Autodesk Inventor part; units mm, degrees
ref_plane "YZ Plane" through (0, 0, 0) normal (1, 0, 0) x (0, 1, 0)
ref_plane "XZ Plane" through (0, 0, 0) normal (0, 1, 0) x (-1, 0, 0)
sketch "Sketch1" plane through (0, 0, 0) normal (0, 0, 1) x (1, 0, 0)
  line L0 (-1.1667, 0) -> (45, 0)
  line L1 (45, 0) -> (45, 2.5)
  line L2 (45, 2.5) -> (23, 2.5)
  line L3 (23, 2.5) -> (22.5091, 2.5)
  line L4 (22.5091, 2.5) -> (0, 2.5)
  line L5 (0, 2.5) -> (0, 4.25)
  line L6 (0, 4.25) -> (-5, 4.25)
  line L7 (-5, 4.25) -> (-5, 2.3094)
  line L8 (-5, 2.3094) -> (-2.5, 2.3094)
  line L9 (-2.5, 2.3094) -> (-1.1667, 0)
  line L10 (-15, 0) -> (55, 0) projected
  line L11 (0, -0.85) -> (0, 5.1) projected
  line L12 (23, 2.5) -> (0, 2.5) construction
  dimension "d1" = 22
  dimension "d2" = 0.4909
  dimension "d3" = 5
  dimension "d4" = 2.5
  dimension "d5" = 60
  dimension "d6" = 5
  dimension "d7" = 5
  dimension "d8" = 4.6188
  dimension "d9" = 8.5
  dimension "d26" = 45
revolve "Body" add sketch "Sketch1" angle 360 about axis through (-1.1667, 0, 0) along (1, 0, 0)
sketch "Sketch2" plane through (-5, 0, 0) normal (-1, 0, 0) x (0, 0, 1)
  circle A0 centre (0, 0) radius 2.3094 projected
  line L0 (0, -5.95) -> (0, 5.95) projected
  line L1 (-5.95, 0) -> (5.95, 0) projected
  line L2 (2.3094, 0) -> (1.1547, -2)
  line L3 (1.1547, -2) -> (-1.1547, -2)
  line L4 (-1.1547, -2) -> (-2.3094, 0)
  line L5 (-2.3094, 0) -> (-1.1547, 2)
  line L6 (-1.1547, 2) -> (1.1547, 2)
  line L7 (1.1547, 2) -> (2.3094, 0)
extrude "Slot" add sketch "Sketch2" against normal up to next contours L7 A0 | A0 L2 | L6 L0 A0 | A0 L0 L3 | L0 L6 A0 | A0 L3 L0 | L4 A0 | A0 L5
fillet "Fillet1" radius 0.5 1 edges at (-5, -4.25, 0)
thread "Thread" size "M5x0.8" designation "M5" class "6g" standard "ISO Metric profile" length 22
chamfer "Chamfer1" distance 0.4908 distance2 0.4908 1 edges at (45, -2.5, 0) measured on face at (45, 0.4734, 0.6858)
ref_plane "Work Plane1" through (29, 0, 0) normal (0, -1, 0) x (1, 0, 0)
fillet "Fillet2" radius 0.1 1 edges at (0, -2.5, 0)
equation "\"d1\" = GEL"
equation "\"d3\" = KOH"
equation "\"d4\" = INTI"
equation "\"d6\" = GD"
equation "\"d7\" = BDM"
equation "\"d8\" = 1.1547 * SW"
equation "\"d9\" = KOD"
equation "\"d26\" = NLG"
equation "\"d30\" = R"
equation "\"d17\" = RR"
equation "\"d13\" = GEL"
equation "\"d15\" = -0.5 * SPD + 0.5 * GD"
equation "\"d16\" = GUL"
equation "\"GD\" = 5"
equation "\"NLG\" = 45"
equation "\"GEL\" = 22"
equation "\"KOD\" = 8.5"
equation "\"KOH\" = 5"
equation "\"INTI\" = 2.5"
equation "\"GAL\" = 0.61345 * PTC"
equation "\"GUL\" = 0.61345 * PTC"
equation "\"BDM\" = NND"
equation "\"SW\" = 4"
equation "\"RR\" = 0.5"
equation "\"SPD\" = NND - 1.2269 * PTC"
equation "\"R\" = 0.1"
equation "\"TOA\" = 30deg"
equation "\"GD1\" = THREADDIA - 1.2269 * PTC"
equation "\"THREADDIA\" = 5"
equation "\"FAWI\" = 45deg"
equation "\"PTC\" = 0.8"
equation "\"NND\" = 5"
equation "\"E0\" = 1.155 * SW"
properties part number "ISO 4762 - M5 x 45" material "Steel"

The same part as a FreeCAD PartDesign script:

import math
import FreeCAD as App
import Part
import Sketcher

V = App.Vector
Q = App.Units.Quantity


def edges_at(feature, points):
    """Names of the edges that pass closest to the given points."""
    edges = feature.Shape.Edges
    near = lambda p: min(range(len(edges)), key=lambda i: edges[i].distToShape(Part.Vertex(*p))[0])
    return sorted({f"Edge{near(p) + 1}" for p in points})


def add_polygon(sketch, points):
    """Adds a closed chain of lines whose ends are joined by coincident constraints."""
    first, n = sketch.GeometryCount, len(points)
    for a, b in zip(points, points[1:] + points[:1]):
        sketch.addGeometry(Part.LineSegment(App.Vector(*a, 0), App.Vector(*b, 0)), False)
    for i in range(n):
        sketch.addConstraint(Sketcher.Constraint("Coincident", first + i, 2, first + (i + 1) % n, 1))

doc = App.newDocument("Part")
body = doc.addObject("PartDesign::Body", "Body")

sketch1 = doc.addObject("Sketcher::SketchObject", "Sketch")
body.addObject(sketch1)
sketch1.AttachmentSupport = (doc.XY_Plane, [""])
sketch1.MapMode = "FlatFace"
add_polygon(sketch1, [(-2.5, 2.3), (-1.2, 0), (45, 0), (45, 2.5), (0, 2.5), (0, 4.2), (-5, 4.2), (-5, 2.3)])
sketch1.addConstraint(Sketcher.Constraint("Horizontal", 1))
sketch1.addConstraint(Sketcher.Constraint("Vertical", 2))
sketch1.addConstraint(Sketcher.Constraint("Horizontal", 3))
sketch1.addConstraint(Sketcher.Constraint("Vertical", 4))
sketch1.addConstraint(Sketcher.Constraint("Horizontal", 5))
sketch1.addConstraint(Sketcher.Constraint("Vertical", 6))
sketch1.addConstraint(Sketcher.Constraint("Horizontal", 7))
sketch1.addConstraint(Sketcher.Constraint("PointOnObject", 0, 2, -1))
sketch1.addConstraint(Sketcher.Constraint("PointOnObject", 3, 2, -2))
sketch1.addConstraint(Sketcher.Constraint("Equal", 7, 2))
sketch1.addConstraint(Sketcher.Constraint("DistanceX", 3, 2, 3, 1, 45.0))
sketch1.addConstraint(Sketcher.Constraint("DistanceX", 5, 2, 5, 1, 5.0))
sketch1.addConstraint(Sketcher.Constraint("DistanceX", 7, 1, 7, 2, 2.5))
sketch1.addConstraint(Sketcher.Constraint("Angle", 0, Q("-60.0006 deg")))
sketch1.addConstraint(Sketcher.Constraint("DistanceY", 4, 1, 4, 2, 1.75))
sketch1.addConstraint(Sketcher.Constraint("DistanceX", 1, 1, 1, 2, 46.1667))
revolution = doc.addObject("PartDesign::Revolution", "Revolution")
body.addObject(revolution)
revolution.Profile = sketch1
revolution.ReferenceAxis = (sketch1, ["H_Axis"])
revolution.Angle = 360

sketch2 = doc.addObject("Sketcher::SketchObject", "Sketch001")
body.addObject(sketch2)
sketch2.AttachmentSupport = (doc.YZ_Plane, [""])
sketch2.MapMode = "FlatFace"
sketch2.AttachmentOffset = App.Placement(V(0, 0, -5), App.Rotation())
sketch2.addGeometry(Part.LineSegment(V(2, 1.2, 0), V(0, 2.3, 0)), False)
sketch2.addGeometry(Part.ArcOfCircle(Part.Circle(V(0, 0, 0), V(0, 0, 1), 2.3), math.radians(30), math.radians(90)), False)
sketch2.addGeometry(Part.ArcOfCircle(Part.Circle(V(0, 0, 0), V(0, 0, 1), 2.3), math.radians(90), math.radians(150)), False)
sketch2.addGeometry(Part.LineSegment(V(0, 2.3, 0), V(-2, 1.2, 0)), False)
sketch2.addGeometry(Part.ArcOfCircle(Part.Circle(V(0, 0, 0), V(0, 0, 1), 2.3), math.radians(-30), math.radians(30)), False)
sketch2.addGeometry(Part.LineSegment(V(2, -1.2, 0), V(2, 1.2, 0)), False)
sketch2.addGeometry(Part.LineSegment(V(-2, 1.2, 0), V(-2, -1.2, 0)), False)
sketch2.addGeometry(Part.ArcOfCircle(Part.Circle(V(0, 0, 0), V(0, 0, 1), 2.3), math.radians(150), math.radians(210)), False)
sketch2.addGeometry(Part.LineSegment(V(-2, -1.2, 0), V(0, -2.3, 0)), False)
sketch2.addGeometry(Part.ArcOfCircle(Part.Circle(V(0, 0, 0), V(0, 0, 1), 2.3), math.radians(-150), math.radians(-90)), False)
sketch2.addGeometry(Part.ArcOfCircle(Part.Circle(V(0, 0, 0), V(0, 0, 1), 2.3), math.radians(-90), math.radians(-30)), False)
sketch2.addGeometry(Part.LineSegment(V(0, -2.3, 0), V(2, -1.2, 0)), False)
sketch2.addConstraint(Sketcher.Constraint("Coincident", 0, 1, 1, 1))
sketch2.addConstraint(Sketcher.Constraint("Coincident", 1, 2, 0, 2))
sketch2.addConstraint(Sketcher.Constraint("Coincident", 2, 1, 3, 1))
sketch2.addConstraint(Sketcher.Constraint("Coincident", 3, 2, 2, 2))
sketch2.addConstraint(Sketcher.Constraint("Coincident", 4, 1, 5, 1))
sketch2.addConstraint(Sketcher.Constraint("Coincident", 5, 2, 4, 2))
sketch2.addConstraint(Sketcher.Constraint("Coincident", 6, 1, 7, 1))
sketch2.addConstraint(Sketcher.Constraint("Coincident", 7, 2, 6, 2))
sketch2.addConstraint(Sketcher.Constraint("Coincident", 8, 1, 9, 1))
sketch2.addConstraint(Sketcher.Constraint("Coincident", 9, 2, 8, 2))
sketch2.addConstraint(Sketcher.Constraint("Coincident", 10, 1, 11, 1))
sketch2.addConstraint(Sketcher.Constraint("Coincident", 11, 2, 10, 2))
sketch2.addConstraint(Sketcher.Constraint("Vertical", 5))
sketch2.addConstraint(Sketcher.Constraint("Vertical", 6))
sketch2.addConstraint(Sketcher.Constraint("Coincident", 1, 3, -1, 1))
sketch2.addConstraint(Sketcher.Constraint("Coincident", 2, 3, -1, 1))
sketch2.addConstraint(Sketcher.Constraint("Coincident", 4, 3, -1, 1))
sketch2.addConstraint(Sketcher.Constraint("Coincident", 7, 3, -1, 1))
sketch2.addConstraint(Sketcher.Constraint("Coincident", 9, 3, -1, 1))
sketch2.addConstraint(Sketcher.Constraint("Coincident", 10, 3, -1, 1))
sketch2.addConstraint(Sketcher.Constraint("Coincident", 2, 1, 1, 2))
sketch2.addConstraint(Sketcher.Constraint("Coincident", 5, 2, 0, 1))
sketch2.addConstraint(Sketcher.Constraint("Coincident", 6, 1, 3, 2))
sketch2.addConstraint(Sketcher.Constraint("Coincident", 8, 1, 7, 2))
sketch2.addConstraint(Sketcher.Constraint("Coincident", 10, 1, 9, 2))
sketch2.addConstraint(Sketcher.Constraint("PointOnObject", 1, 2, -2))
sketch2.addConstraint(Sketcher.Constraint("PointOnObject", 9, 2, -2))
sketch2.addConstraint(Sketcher.Constraint("Parallel", 0, 8))
sketch2.addConstraint(Sketcher.Constraint("Parallel", 3, 11))
sketch2.addConstraint(Sketcher.Constraint("Angle", 0, Q("150 deg")))
sketch2.addConstraint(Sketcher.Constraint("DistanceX", -1, 1, 0, 1, 2.0))
pad1 = doc.addObject("PartDesign::Pad", "Pad")
body.addObject(pad1)
pad1.Profile = sketch2
pad1.Length = 2.6786
doc.recompute()

fillet = doc.addObject("PartDesign::Fillet", "Fillet")
body.addObject(fillet)
fillet.Base = (pad1, edges_at(pad1, [(-5, -4.25, 0)]))
fillet.Radius = 0.5
doc.recompute()

chamfer = doc.addObject("PartDesign::Chamfer", "Chamfer")
body.addObject(chamfer)
chamfer.Base = (fillet, edges_at(fillet, [(45, -2.5, 0)]))
chamfer.ChamferType = "Two distances"
chamfer.Size = 0.4908
chamfer.Size2 = 0.4908
doc.recompute()

fillet2 = doc.addObject("PartDesign::Fillet", "Fillet001")
body.addObject(fillet2)
fillet2.Base = (chamfer, edges_at(chamfer, [(0, -2.5, 0)]))
fillet2.Radius = 0.1

doc.recompute()
